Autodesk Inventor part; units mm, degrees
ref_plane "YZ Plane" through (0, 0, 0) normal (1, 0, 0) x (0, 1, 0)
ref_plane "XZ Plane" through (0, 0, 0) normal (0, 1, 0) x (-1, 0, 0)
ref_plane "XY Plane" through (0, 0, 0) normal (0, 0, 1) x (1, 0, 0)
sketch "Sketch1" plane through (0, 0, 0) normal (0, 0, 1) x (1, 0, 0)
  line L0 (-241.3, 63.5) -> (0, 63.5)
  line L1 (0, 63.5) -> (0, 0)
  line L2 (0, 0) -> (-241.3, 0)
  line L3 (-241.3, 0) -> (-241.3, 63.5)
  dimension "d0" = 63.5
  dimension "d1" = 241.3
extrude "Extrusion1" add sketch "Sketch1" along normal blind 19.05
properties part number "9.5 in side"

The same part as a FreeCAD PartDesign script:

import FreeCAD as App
import Part
import Sketcher

V = App.Vector
Q = App.Units.Quantity


def add_polygon(sketch, points):
    """Adds a closed chain of lines whose ends are joined by coincident constraints."""
    first, n = sketch.GeometryCount, len(points)
    for a, b in zip(points, points[1:] + points[:1]):
        sketch.addGeometry(Part.LineSegment(App.Vector(*a, 0), App.Vector(*b, 0)), False)
    for i in range(n):
        sketch.addConstraint(Sketcher.Constraint("Coincident", first + i, 2, first + (i + 1) % n, 1))

doc = App.newDocument("Part")
body = doc.addObject("PartDesign::Body", "Body")

# Sketch on XY plane
sketch1 = body.newObject("Sketcher::SketchObject", "Sketch")
sketch1.AttachmentSupport = (doc.getObject("XY_Plane"), [""])
sketch1.MapMode = "FlatFace"
add_polygon(sketch1, [(0, 64), (-241, 64), (-241, 0), (0, 0)])  # lines 0-3
sketch1.addConstraint([
    Sketcher.Constraint("Horizontal", 0),
    Sketcher.Constraint("Vertical", 1),
    Sketcher.Constraint("Horizontal", 2),
    Sketcher.Constraint("Vertical", 3),
    Sketcher.Constraint("Coincident", 2, 2, -1, 1),
    Sketcher.Constraint("DistanceX", 0, 2, 0, 1, Q("9.5 in")),
    Sketcher.Constraint("DistanceY", 1, 2, 1, 1, Q("2.5 in")),
])
pad1 = body.newObject("PartDesign::Pad", "Pad")
pad1.Profile = sketch1
pad1.Length = Q("0.75 in")

doc.recompute()
